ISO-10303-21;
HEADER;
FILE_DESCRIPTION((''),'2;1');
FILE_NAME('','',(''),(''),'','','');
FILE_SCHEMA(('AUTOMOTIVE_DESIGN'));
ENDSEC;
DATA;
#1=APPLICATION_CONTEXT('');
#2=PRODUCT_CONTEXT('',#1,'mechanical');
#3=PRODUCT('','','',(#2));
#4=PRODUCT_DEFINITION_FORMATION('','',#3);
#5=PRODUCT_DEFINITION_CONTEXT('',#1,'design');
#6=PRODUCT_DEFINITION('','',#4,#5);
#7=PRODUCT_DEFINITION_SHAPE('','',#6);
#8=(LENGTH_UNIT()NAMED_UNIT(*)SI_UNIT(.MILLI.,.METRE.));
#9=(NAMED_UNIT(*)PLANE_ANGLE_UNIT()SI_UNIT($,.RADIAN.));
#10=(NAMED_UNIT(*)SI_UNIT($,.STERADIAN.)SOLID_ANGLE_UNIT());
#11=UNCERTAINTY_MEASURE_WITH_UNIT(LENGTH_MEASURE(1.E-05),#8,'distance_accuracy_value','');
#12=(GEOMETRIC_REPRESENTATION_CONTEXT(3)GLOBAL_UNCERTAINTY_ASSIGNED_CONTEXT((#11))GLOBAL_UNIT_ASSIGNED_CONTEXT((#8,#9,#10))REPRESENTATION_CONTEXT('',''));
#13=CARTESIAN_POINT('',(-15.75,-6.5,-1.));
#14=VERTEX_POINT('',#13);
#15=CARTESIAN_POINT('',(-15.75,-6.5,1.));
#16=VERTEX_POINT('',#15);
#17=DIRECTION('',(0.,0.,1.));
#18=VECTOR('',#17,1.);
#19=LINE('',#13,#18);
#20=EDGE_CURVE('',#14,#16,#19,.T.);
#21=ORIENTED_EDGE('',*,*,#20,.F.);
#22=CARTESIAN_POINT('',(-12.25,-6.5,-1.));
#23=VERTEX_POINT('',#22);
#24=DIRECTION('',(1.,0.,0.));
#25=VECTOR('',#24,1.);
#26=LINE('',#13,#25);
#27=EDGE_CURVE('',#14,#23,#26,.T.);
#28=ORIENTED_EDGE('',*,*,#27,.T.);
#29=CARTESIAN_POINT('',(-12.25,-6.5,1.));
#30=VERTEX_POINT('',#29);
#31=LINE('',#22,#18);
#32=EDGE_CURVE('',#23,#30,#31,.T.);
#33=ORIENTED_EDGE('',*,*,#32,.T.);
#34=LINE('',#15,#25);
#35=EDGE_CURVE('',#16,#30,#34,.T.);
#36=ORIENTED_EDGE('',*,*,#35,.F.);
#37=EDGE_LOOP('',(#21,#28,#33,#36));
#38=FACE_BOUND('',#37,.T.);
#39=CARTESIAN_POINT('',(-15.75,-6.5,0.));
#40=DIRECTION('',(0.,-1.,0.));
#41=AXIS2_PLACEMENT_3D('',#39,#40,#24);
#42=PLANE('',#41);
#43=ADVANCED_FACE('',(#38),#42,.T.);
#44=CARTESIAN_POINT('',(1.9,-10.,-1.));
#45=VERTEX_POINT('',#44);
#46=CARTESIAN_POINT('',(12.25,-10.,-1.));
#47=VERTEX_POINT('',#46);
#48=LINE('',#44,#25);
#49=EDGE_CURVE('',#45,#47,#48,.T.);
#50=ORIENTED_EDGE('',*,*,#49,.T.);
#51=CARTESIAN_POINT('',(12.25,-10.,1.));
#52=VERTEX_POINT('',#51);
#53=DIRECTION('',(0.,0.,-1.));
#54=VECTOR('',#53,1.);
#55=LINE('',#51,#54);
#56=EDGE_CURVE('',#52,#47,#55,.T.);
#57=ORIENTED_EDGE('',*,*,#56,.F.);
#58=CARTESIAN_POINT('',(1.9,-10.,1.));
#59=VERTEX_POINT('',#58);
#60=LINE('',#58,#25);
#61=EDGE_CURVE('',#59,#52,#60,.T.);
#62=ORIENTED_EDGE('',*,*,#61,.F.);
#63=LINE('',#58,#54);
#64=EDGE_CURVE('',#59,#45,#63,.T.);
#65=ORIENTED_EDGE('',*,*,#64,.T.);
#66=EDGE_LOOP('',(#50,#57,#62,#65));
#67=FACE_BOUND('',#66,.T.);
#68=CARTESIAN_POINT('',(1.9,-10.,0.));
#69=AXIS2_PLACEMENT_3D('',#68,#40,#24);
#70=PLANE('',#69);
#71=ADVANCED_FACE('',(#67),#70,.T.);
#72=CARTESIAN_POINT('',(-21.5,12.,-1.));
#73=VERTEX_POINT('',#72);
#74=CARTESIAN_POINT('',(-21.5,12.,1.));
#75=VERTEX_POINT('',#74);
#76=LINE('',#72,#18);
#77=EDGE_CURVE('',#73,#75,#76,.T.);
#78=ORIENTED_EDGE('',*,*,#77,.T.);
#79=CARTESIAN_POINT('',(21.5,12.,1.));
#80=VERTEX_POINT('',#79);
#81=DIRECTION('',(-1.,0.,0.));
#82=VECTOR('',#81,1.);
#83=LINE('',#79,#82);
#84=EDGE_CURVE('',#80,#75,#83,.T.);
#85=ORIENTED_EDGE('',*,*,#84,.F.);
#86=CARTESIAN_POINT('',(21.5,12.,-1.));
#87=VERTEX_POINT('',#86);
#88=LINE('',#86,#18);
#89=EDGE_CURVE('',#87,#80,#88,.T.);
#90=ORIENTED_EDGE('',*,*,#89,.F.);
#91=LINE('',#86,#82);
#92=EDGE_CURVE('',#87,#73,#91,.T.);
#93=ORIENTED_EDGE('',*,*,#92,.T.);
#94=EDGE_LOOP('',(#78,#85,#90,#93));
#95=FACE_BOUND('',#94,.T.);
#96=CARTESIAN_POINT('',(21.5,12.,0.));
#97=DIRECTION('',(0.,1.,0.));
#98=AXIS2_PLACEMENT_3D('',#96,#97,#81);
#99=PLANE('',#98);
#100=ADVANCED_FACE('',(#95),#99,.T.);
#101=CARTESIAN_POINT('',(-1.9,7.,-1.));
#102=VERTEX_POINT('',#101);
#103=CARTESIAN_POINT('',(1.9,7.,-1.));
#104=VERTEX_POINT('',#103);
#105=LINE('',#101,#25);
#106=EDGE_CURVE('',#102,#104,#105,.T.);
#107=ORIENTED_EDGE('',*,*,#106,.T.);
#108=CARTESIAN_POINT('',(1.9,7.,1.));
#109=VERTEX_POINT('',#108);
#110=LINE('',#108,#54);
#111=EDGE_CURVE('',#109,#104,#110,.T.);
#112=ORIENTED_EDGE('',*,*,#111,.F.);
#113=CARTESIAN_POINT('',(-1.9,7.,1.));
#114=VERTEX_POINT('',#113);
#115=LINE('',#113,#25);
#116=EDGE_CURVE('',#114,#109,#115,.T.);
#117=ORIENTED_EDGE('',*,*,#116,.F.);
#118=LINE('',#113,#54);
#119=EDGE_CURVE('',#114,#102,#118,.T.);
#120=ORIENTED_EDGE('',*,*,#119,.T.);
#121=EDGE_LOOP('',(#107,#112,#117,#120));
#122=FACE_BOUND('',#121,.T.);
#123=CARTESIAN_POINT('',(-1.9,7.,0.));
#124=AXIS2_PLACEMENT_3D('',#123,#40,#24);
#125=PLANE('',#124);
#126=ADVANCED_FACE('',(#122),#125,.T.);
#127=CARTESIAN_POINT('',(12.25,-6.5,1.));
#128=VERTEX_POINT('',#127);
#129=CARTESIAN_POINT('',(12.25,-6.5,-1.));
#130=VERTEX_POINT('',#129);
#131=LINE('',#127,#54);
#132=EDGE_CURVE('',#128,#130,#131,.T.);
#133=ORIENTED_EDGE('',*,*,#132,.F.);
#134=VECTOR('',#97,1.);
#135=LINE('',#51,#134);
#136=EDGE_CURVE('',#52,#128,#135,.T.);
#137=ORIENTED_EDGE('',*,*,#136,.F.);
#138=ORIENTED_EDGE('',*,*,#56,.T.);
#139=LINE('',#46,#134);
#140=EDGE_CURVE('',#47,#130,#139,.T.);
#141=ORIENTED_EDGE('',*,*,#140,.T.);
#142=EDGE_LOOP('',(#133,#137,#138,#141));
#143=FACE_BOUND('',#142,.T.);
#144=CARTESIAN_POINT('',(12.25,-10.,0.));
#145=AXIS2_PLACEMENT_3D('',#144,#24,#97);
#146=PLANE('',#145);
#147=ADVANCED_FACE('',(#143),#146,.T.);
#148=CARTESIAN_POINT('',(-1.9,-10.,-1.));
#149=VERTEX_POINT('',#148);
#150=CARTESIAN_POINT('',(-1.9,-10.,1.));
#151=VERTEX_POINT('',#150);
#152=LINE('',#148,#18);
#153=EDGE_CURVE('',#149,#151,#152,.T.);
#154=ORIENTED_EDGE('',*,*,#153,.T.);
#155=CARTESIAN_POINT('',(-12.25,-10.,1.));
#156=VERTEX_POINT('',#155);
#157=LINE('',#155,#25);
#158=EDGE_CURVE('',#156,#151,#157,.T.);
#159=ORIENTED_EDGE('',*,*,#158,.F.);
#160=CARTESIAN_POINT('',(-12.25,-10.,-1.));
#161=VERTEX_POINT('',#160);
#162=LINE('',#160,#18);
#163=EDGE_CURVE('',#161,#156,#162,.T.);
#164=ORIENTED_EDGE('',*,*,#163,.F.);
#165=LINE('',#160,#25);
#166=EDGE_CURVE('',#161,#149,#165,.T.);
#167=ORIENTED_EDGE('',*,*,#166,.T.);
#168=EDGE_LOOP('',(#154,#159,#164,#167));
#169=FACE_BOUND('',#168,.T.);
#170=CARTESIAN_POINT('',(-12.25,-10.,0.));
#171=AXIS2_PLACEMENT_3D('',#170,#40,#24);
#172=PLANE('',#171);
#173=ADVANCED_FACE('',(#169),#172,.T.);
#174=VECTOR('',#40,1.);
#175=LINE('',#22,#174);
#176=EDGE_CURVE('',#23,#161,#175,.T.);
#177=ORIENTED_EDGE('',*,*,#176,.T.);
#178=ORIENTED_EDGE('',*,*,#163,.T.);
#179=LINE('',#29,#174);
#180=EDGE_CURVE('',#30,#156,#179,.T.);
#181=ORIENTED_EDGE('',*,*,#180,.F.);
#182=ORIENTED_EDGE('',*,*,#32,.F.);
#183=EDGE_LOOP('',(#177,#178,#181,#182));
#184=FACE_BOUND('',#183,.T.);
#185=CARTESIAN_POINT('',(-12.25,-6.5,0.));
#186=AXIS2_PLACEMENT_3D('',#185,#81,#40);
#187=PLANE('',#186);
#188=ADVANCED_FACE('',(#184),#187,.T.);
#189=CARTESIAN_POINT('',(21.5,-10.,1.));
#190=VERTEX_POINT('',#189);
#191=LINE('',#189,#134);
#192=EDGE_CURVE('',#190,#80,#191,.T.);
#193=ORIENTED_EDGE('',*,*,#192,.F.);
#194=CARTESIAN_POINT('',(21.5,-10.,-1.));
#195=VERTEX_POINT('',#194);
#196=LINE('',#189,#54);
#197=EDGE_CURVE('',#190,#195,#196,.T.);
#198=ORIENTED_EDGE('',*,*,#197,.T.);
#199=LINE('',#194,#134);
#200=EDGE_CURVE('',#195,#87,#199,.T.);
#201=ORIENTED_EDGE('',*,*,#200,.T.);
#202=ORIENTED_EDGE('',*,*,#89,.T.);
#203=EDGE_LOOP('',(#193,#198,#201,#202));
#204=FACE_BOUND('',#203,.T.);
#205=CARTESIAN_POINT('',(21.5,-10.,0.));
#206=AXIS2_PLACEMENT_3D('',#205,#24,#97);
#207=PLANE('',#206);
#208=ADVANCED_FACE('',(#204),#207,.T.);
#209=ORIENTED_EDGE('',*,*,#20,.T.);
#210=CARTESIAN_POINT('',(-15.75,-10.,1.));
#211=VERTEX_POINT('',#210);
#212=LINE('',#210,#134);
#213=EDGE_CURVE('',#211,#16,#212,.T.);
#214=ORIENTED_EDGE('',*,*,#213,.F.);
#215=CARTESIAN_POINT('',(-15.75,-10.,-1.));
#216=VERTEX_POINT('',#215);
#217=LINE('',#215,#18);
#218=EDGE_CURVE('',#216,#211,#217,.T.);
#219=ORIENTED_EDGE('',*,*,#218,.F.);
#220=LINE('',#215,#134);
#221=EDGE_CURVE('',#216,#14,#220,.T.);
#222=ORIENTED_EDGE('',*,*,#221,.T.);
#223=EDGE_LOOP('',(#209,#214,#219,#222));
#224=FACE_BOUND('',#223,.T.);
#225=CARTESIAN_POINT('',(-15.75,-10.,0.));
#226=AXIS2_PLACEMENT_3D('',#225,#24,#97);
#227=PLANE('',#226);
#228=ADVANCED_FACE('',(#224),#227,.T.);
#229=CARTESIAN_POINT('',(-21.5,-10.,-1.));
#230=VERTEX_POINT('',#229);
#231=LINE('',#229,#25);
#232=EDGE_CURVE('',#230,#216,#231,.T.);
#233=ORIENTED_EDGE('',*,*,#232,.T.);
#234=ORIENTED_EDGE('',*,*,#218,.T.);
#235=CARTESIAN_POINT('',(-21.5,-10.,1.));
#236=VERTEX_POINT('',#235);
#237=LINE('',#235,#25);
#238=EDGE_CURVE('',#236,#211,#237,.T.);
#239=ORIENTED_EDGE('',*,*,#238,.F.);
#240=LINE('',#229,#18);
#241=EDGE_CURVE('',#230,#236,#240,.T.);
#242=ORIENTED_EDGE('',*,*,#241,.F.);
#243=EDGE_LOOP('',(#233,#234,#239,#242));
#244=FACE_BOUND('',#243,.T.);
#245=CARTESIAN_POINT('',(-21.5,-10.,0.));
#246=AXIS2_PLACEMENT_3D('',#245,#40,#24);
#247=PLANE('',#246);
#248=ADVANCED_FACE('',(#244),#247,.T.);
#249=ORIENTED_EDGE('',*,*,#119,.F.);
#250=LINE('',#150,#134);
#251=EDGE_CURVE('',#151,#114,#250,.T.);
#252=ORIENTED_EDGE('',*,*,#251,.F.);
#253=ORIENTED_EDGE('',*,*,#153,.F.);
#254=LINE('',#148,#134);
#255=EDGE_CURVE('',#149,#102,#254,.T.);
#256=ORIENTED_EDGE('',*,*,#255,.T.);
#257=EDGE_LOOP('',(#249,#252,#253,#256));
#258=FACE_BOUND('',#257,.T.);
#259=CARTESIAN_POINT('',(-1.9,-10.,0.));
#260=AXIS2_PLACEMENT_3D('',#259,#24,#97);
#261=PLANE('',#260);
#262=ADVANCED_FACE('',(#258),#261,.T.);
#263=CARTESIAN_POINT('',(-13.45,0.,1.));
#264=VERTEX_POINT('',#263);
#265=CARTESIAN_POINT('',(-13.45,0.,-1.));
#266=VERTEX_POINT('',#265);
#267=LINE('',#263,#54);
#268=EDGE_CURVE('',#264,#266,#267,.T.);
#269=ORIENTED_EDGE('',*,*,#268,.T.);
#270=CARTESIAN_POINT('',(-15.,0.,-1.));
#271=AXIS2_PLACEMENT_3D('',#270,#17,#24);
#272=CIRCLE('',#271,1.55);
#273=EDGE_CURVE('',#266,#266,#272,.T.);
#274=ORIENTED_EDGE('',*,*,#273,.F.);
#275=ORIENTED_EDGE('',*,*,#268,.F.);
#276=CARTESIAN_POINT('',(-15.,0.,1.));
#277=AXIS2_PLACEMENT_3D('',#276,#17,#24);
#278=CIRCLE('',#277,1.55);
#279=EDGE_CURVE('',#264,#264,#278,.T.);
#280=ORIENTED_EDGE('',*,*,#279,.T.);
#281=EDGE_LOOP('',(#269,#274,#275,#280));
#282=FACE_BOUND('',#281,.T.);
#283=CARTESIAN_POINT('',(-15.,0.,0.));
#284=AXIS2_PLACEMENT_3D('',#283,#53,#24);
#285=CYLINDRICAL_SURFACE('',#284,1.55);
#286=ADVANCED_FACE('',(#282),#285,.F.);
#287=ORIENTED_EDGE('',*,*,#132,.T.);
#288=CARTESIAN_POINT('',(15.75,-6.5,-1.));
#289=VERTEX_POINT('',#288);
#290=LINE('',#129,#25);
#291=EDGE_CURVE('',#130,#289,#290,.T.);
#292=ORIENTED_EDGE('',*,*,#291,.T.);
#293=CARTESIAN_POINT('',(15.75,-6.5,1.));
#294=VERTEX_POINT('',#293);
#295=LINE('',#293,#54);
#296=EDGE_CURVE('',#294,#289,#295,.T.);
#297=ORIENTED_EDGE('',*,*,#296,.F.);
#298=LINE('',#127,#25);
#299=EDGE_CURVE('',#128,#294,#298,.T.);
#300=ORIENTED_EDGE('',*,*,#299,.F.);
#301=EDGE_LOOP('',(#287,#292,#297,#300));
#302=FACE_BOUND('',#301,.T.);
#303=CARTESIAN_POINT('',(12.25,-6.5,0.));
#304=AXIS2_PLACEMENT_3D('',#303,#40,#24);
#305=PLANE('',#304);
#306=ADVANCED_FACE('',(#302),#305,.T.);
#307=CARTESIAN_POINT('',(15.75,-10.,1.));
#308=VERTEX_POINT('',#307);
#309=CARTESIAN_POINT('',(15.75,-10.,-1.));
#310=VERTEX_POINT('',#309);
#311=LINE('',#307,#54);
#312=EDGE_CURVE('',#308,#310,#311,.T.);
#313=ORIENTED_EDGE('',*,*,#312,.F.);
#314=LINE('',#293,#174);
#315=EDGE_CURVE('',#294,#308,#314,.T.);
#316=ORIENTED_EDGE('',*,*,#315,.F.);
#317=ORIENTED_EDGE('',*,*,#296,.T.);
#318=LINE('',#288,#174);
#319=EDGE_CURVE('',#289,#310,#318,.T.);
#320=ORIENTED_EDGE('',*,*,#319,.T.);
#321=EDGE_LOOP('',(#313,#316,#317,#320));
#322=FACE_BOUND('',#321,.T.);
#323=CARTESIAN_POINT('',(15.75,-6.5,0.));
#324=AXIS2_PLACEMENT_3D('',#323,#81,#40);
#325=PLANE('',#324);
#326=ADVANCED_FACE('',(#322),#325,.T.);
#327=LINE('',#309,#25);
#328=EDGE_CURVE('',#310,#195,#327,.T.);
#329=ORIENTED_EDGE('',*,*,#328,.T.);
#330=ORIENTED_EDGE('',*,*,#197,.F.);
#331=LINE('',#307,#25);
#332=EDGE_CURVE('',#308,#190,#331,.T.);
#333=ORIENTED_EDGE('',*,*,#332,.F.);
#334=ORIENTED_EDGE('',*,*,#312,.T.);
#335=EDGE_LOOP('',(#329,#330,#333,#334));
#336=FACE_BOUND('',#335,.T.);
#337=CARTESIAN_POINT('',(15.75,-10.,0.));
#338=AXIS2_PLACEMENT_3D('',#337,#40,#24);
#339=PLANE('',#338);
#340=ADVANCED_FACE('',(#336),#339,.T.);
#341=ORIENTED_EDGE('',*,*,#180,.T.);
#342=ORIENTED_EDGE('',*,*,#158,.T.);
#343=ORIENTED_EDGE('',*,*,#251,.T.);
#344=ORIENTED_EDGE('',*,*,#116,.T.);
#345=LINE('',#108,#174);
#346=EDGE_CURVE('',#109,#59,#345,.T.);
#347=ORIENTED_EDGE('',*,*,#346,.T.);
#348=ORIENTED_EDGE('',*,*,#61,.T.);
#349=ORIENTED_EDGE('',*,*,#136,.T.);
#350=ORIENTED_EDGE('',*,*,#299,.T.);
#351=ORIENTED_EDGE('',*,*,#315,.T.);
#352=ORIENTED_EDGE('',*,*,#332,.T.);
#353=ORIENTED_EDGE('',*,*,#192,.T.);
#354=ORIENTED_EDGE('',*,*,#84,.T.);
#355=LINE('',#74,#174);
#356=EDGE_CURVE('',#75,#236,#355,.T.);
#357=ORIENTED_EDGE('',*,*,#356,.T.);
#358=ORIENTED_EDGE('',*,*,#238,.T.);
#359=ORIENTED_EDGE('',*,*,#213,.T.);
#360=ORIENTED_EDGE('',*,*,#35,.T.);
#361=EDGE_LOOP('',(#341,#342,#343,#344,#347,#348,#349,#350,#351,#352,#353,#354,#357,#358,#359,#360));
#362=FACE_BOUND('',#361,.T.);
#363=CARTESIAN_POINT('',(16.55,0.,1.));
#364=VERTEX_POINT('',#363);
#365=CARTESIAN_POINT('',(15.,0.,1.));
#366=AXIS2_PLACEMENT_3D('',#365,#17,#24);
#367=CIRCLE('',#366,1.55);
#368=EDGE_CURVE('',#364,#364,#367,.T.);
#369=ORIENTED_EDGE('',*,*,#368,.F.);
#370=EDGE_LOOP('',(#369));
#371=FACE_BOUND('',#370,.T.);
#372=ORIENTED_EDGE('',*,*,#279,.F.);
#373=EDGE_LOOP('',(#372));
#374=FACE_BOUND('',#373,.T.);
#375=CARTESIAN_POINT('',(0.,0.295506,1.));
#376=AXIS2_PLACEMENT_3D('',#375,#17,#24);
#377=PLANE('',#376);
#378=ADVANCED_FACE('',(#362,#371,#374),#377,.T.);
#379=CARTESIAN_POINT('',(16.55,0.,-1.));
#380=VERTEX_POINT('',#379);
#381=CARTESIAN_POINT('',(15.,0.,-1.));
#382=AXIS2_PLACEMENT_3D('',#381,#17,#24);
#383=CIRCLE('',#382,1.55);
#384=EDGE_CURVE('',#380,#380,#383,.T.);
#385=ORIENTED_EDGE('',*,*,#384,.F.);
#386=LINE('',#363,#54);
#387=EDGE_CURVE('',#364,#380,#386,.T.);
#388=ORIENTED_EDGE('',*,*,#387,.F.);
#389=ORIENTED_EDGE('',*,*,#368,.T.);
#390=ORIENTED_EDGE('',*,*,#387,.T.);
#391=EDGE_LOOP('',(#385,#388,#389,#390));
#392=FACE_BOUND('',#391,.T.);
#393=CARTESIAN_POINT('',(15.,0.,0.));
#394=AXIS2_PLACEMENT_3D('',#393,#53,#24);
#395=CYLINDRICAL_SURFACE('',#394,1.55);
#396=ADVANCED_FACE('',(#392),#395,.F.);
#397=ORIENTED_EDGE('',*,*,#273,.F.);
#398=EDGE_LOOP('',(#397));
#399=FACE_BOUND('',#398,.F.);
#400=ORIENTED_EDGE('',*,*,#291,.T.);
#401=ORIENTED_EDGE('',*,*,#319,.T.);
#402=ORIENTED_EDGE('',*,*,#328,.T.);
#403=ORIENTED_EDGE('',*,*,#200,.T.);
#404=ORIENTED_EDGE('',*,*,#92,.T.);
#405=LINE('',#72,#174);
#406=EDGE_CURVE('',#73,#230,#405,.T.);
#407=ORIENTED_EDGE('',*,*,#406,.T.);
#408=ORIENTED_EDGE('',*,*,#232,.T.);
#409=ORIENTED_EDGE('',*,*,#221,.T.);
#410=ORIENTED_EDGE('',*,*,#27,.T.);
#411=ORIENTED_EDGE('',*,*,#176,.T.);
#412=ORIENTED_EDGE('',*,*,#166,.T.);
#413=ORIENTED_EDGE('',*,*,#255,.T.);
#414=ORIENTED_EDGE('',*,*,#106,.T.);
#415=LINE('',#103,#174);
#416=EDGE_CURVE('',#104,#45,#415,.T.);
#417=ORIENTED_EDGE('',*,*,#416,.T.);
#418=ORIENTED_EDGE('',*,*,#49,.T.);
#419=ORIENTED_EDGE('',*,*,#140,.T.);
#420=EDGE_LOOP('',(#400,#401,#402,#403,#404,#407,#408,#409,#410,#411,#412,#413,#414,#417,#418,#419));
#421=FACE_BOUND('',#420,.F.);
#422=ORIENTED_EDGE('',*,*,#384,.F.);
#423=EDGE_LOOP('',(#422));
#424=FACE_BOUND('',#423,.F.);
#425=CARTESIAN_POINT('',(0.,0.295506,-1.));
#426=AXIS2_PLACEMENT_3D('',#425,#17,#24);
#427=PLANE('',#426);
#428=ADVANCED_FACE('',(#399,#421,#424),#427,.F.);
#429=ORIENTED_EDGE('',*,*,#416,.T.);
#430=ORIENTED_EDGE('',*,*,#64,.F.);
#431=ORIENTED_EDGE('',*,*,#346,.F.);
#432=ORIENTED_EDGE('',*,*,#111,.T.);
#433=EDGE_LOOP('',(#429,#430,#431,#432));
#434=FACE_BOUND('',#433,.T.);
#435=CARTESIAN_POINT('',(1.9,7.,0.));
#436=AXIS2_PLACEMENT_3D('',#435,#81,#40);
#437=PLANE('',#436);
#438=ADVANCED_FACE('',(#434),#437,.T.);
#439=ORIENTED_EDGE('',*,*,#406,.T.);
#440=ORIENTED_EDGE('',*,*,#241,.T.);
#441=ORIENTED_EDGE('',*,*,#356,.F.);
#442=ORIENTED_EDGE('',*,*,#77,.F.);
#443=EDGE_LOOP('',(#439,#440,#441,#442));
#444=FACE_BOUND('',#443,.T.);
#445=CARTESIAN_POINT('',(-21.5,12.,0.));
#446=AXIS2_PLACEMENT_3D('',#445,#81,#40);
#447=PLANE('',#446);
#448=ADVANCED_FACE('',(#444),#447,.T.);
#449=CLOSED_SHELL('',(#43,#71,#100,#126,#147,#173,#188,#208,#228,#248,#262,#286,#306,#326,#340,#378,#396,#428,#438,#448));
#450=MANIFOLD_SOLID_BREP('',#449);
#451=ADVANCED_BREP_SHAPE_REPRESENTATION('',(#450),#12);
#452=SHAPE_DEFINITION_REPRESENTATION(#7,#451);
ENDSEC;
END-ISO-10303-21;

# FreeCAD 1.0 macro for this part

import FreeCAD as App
import Part
import Sketcher
Q = App.Units.Quantity


def add_polygon(sketch, points):
    """Adds a closed chain of lines whose ends are joined by coincident constraints."""
    first, n = sketch.GeometryCount, len(points)
    for a, b in zip(points, points[1:] + points[:1]):
        sketch.addGeometry(Part.LineSegment(App.Vector(*a, 0), App.Vector(*b, 0)), False)
    for i in range(n):
        sketch.addConstraint(Sketcher.Constraint("Coincident", first + i, 2, first + (i + 1) % n, 1))

doc = App.newDocument("Part")
body = doc.addObject("PartDesign::Body", "Body")

# Sketch on XY plane
sketch1 = body.newObject("Sketcher::SketchObject", "Sketch")
sketch1.AttachmentSupport = (doc.getObject("XY_Plane"), [""])
sketch1.MapMode = "FlatFace"
add_polygon(sketch1, [(21.5, -10), (21.5, 12), (-21.5, 12), (-21.5, -10), (-15.8, -10), (-15.8, -6.5), (-12.2, -6.5), (-12.2, -10), (-1.9, -10), (-1.9, 7), (1.9, 7), (1.9, -10), (12.2, -10), (12.2, -6.5), (15.8, -6.5), (15.8, -10)])  # lines 0-15
sketch1.addGeometry(Part.Circle(App.Vector(-15, 0, 0), App.Vector(0, 0, 1), 1.6), False)  # 16
sketch1.addGeometry(Part.Circle(App.Vector(15, 0, 0), App.Vector(0, 0, 1), 1.6), False)  # 17
sketch1.addConstraint(Sketcher.Constraint("Vertical", 0))
sketch1.addConstraint(Sketcher.Constraint("Horizontal", 1))
sketch1.addConstraint(Sketcher.Constraint("Vertical", 2))
sketch1.addConstraint(Sketcher.Constraint("Horizontal", 3))
sketch1.addConstraint(Sketcher.Constraint("Vertical", 4))
sketch1.addConstraint(Sketcher.Constraint("Horizontal", 5))
sketch1.addConstraint(Sketcher.Constraint("Vertical", 6))
sketch1.addConstraint(Sketcher.Constraint("Horizontal", 7))
sketch1.addConstraint(Sketcher.Constraint("Vertical", 8))
sketch1.addConstraint(Sketcher.Constraint("Horizontal", 9))
sketch1.addConstraint(Sketcher.Constraint("Vertical", 10))
sketch1.addConstraint(Sketcher.Constraint("Horizontal", 11))
sketch1.addConstraint(Sketcher.Constraint("Vertical", 12))
sketch1.addConstraint(Sketcher.Constraint("Horizontal", 13))
sketch1.addConstraint(Sketcher.Constraint("Vertical", 14))
sketch1.addConstraint(Sketcher.Constraint("Horizontal", 15))
sketch1.addConstraint(Sketcher.Constraint("Equal", 16, 17))
sketch1.addConstraint(Sketcher.Constraint("Symmetric", 16, 3, 17, 3, -1, 1))
sketch1.addConstraint(Sketcher.Constraint("Symmetric", 7, 2, 10, 2, -2))
sketch1.addConstraint(Sketcher.Constraint("Symmetric", 5, 2, 12, 2, -2))
sketch1.addConstraint(Sketcher.Constraint("Symmetric", 3, 2, 14, 2, -2))
sketch1.addConstraint(Sketcher.Constraint("PointOnObject", 16, 3, -1))
sketch1.addConstraint(Sketcher.Constraint("Horizontal", 3, 2, 6, 2))
sketch1.addConstraint(Sketcher.Constraint("Equal", 3, 15))
sketch1.addConstraint(Sketcher.Constraint("Equal", 13, 4))
sketch1.addConstraint(Sketcher.Constraint("Diameter", 16, Q("3.1 mm")))
sketch1.addConstraint(Sketcher.Constraint("DistanceX", 1, 2, 1, 1, Q("43 mm")))
sketch1.addConstraint(Sketcher.Constraint("DistanceY", 0, 1, 0, 2, Q("22 mm")))
sketch1.addConstraint(Sketcher.Constraint("DistanceY", 8, 1, 8, 2, Q("17 mm")))
sketch1.addConstraint(Sketcher.Constraint("DistanceX", 5, 1, 5, 2, Q("3.5 mm")))
sketch1.addConstraint(Sketcher.Constraint("DistanceX", 9, 1, 9, 2, Q("3.8 mm")))
sketch1.addConstraint(Sketcher.Constraint("DistanceX", 16, 3, -1, 1, Q("15 mm")))
sketch1.addConstraint(Sketcher.Constraint("DistanceY", -1, 1, 0, 2, Q("12 mm")))
sketch1.addConstraint(Sketcher.Constraint("DistanceX", 3, 1, 3, 2, Q("5.75 mm")))
pad1 = body.newObject("PartDesign::Pad", "Pad")
pad1.Profile = sketch1
pad1.Length = 2
pad1.Midplane = True

doc.recompute()
